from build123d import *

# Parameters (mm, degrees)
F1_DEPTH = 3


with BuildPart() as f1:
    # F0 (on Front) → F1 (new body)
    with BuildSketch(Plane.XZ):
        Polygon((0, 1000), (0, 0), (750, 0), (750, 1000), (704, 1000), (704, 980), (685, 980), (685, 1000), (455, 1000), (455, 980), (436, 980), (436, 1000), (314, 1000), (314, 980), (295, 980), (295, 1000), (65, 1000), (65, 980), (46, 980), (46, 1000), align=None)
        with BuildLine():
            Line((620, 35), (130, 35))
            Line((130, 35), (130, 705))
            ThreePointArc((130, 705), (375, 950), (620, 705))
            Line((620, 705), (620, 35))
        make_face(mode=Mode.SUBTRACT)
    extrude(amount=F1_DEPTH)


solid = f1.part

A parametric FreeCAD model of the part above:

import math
import FreeCAD as App
import Part
import Sketcher


def add_polygon(sketch, points):
    """Adds a closed chain of lines whose ends are joined by coincident constraints."""
    first, n = sketch.GeometryCount, len(points)
    for a, b in zip(points, points[1:] + points[:1]):
        sketch.addGeometry(Part.LineSegment(App.Vector(*a, 0), App.Vector(*b, 0)), False)
    for i in range(n):
        sketch.addConstraint(Sketcher.Constraint("Coincident", first + i, 2, first + (i + 1) % n, 1))

doc = App.newDocument("Part")
body = doc.addObject("PartDesign::Body", "Body")

# Sketch on XZ plane
sketch1 = body.newObject("Sketcher::SketchObject", "Sketch")
sketch1.AttachmentSupport = (doc.getObject("XZ_Plane"), [""])
sketch1.MapMode = "FlatFace"
add_polygon(sketch1, [(0, 1000), (0, 0), (750, 0), (750, 1000), (704, 1000), (704, 980), (685, 980), (685, 1000), (455, 1000), (455, 980), (436, 980), (436, 1000), (314, 1000), (314, 980), (295, 980), (295, 1000), (65, 1000), (65, 980), (46, 980), (46, 1000)])  # lines 0-19
sketch1.addGeometry(Part.LineSegment(App.Vector(620, 705, 0), App.Vector(620, 35, 0)), False)  # 20
sketch1.addGeometry(Part.LineSegment(App.Vector(620, 35, 0), App.Vector(130, 35, 0)), False)  # 21
sketch1.addGeometry(Part.LineSegment(App.Vector(130, 35, 0), App.Vector(130, 705, 0)), False)  # 22
sketch1.addGeometry(Part.ArcOfCircle(Part.Circle(App.Vector(375, 705, 0), App.Vector(0, 0, 1), 245), math.radians(0), math.radians(180)), False)  # 23
sketch1.addConstraint([
    Sketcher.Constraint("Coincident", 20, 2, 21, 1),
    Sketcher.Constraint("Coincident", 21, 2, 22, 1),
    Sketcher.Constraint("Tangent", 22, 2, 23, 2),
    Sketcher.Constraint("Tangent", 23, 1, 20, 1),
    Sketcher.Constraint("Vertical", 0),
    Sketcher.Constraint("Horizontal", 1),
    Sketcher.Constraint("Vertical", 2),
    Sketcher.Constraint("Horizontal", 3),
    Sketcher.Constraint("Vertical", 4),
    Sketcher.Constraint("Horizontal", 5),
    Sketcher.Constraint("Vertical", 6),
    Sketcher.Constraint("Horizontal", 7),
    Sketcher.Constraint("Vertical", 8),
    Sketcher.Constraint("Horizontal", 9),
    Sketcher.Constraint("Vertical", 10),
    Sketcher.Constraint("Horizontal", 11),
    Sketcher.Constraint("Vertical", 12),
    Sketcher.Constraint("Horizontal", 13),
    Sketcher.Constraint("Vertical", 14),
    Sketcher.Constraint("Horizontal", 15),
    Sketcher.Constraint("Vertical", 16),
    Sketcher.Constraint("Horizontal", 17),
    Sketcher.Constraint("Vertical", 18),
    Sketcher.Constraint("Horizontal", 19),
    Sketcher.Constraint("Vertical", 20),
    Sketcher.Constraint("Horizontal", 21),
    Sketcher.Constraint("Vertical", 22),
    Sketcher.Constraint("Coincident", 0, 2, -1, 1),
    Sketcher.Constraint("Horizontal", 3, 2, 6, 2),
    Sketcher.Constraint("Horizontal", 5, 2, 8, 2),
    Sketcher.Constraint("Horizontal", 7, 2, 10, 2),
    Sketcher.Constraint("Horizontal", 9, 2, 12, 2),
    Sketcher.Constraint("Horizontal", 11, 2, 14, 2),
    Sketcher.Constraint("Horizontal", 13, 2, 16, 2),
    Sketcher.Constraint("Horizontal", 15, 2, 18, 2),
    Sketcher.Constraint("Equal", 5, 9),
    Sketcher.Constraint("Equal", 9, 13),
    Sketcher.Constraint("Equal", 7, 15),
    Sketcher.Constraint("Equal", 13, 17),
    Sketcher.Constraint("Equal", 3, 19),
    Sketcher.Constraint("Radius", 23, 245.0),
    Sketcher.Constraint("DistanceX", 1, 1, 1, 2, 750.0),
    Sketcher.Constraint("DistanceX", 3, 2, 3, 1, 46.0),
    Sketcher.Constraint("DistanceX", 5, 2, 5, 1, 19.0),
    Sketcher.Constraint("DistanceX", 7, 2, 7, 1, 230.0),
    Sketcher.Constraint("DistanceY", 0, 2, 0, 1, 1000.0),
    Sketcher.Constraint("DistanceY", 4, 2, 4, 1, 20.0),
    Sketcher.Constraint("DistanceY", 20, 2, 20, 1, 670.0),
    Sketcher.Constraint("DistanceX", -1, 1, 23, 3, 375.0),
    Sketcher.Constraint("DistanceY", -1, 1, 23, 3, 705.0),
])
pad1 = body.newObject("PartDesign::Pad", "Pad")
pad1.Profile = sketch1
pad1.Length = 3

doc.recompute()
